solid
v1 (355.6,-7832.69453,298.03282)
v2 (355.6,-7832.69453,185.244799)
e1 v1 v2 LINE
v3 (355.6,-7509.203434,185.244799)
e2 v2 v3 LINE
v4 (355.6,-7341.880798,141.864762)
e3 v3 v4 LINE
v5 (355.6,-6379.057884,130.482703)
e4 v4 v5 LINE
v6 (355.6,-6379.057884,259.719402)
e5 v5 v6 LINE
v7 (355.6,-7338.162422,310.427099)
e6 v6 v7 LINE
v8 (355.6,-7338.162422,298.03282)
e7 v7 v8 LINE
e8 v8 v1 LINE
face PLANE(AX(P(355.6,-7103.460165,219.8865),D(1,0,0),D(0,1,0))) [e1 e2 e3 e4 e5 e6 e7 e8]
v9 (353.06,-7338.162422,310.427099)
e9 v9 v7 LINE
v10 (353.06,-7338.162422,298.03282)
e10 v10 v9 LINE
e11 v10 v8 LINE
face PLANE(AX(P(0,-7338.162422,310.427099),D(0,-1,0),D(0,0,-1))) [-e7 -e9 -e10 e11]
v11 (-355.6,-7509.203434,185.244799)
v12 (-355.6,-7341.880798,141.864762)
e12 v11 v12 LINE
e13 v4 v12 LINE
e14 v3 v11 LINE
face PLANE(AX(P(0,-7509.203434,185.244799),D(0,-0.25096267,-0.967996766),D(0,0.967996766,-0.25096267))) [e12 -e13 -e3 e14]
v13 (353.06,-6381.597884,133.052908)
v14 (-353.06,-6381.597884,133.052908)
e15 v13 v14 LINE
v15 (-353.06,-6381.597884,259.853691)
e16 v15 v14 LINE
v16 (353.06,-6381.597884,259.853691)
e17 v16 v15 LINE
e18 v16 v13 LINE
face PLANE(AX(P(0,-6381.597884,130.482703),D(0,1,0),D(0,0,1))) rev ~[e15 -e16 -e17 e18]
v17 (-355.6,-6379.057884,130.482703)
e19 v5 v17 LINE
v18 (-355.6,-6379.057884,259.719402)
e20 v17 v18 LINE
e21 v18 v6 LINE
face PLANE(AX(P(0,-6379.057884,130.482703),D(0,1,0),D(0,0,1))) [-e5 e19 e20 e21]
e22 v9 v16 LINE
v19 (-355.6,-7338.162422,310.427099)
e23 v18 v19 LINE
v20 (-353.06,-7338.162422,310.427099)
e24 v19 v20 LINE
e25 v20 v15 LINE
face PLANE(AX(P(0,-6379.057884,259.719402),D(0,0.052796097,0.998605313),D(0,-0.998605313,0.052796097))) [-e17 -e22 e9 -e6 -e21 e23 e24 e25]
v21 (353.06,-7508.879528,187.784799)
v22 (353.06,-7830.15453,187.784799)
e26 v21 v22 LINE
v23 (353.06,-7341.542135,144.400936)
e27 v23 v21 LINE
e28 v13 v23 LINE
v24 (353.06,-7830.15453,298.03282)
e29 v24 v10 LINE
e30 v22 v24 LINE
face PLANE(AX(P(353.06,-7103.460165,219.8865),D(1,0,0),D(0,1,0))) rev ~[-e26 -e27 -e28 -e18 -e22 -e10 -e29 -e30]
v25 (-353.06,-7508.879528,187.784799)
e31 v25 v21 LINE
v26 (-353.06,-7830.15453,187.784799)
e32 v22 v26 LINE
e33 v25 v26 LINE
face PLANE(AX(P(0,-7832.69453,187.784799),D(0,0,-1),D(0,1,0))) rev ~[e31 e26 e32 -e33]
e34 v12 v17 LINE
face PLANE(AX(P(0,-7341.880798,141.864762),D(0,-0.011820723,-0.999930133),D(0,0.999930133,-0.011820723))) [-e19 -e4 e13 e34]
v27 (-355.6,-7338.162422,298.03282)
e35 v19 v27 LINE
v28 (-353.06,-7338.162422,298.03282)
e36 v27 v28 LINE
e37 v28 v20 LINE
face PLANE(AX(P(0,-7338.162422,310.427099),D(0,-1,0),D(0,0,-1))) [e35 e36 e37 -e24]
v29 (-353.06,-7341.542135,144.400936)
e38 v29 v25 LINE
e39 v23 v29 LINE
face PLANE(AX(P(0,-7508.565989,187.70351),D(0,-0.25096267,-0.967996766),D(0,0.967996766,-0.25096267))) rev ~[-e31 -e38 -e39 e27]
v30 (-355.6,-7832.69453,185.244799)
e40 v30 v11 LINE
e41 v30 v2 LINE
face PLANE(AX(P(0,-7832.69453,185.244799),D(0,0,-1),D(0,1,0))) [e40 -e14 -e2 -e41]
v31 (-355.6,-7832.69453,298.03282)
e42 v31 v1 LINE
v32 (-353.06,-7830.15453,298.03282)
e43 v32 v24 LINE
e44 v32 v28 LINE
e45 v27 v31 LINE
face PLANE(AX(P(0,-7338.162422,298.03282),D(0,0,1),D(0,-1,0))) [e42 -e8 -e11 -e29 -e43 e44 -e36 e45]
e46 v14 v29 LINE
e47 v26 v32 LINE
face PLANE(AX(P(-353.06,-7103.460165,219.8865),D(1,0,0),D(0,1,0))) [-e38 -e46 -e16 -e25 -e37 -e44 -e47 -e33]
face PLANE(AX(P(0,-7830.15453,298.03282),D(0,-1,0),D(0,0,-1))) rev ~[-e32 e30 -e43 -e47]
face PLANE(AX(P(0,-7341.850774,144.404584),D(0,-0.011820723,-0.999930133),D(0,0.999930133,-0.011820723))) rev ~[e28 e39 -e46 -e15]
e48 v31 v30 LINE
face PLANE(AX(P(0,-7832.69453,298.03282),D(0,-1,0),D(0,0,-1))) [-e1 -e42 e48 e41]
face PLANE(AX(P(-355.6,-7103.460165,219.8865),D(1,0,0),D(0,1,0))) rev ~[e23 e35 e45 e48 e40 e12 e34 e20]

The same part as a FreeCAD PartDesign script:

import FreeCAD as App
import Part
import Sketcher
Q = App.Units.Quantity


def faces_at(feature, points):
    """Names of the faces that lie closest to the given points."""
    faces = feature.Shape.Faces
    near = lambda p: min(range(len(faces)), key=lambda i: faces[i].distToShape(Part.Vertex(*p))[0])
    return sorted({f"Face{near(p) + 1}" for p in points})

doc = App.newDocument("Part")
body = doc.addObject("PartDesign::Body", "Body")

sketch1 = body.newObject("Sketcher::SketchObject", "Sketch")
sketch1.AttachmentSupport = (doc.getObject("YZ_Plane"), [""])
sketch1.MapMode = "FlatFace"
sketch1.addGeometry(Part.LineSegment(App.Vector(-6379, 130, 0), App.Vector(-6379, 260, 0)), False)
sketch1.addGeometry(Part.LineSegment(App.Vector(-6379, 260, 0), App.Vector(-7338, 310, 0)), False)
sketch1.addGeometry(Part.LineSegment(App.Vector(-7338, 310, 0), App.Vector(-7338, 298, 0)), False)
sketch1.addGeometry(Part.LineSegment(App.Vector(-7338, 298, 0), App.Vector(-7833, 298, 0)), False)
sketch1.addGeometry(Part.LineSegment(App.Vector(-7833, 298, 0), App.Vector(-7833, 185, 0)), False)
sketch1.addGeometry(Part.LineSegment(App.Vector(-7833, 185, 0), App.Vector(-7509, 185, 0)), False)
sketch1.addGeometry(Part.LineSegment(App.Vector(-7509, 185, 0), App.Vector(-7342, 142, 0)), False)
sketch1.addGeometry(Part.LineSegment(App.Vector(-7342, 142, 0), App.Vector(-6379, 130, 0)), False)
sketch1.addConstraint(Sketcher.Constraint("Coincident", 0, 2, 1, 1))
sketch1.addConstraint(Sketcher.Constraint("Coincident", 1, 2, 2, 1))
sketch1.addConstraint(Sketcher.Constraint("Coincident", 2, 2, 3, 1))
sketch1.addConstraint(Sketcher.Constraint("Coincident", 3, 2, 4, 1))
sketch1.addConstraint(Sketcher.Constraint("Coincident", 4, 2, 5, 1))
sketch1.addConstraint(Sketcher.Constraint("Coincident", 5, 2, 6, 1))
sketch1.addConstraint(Sketcher.Constraint("Coincident", 6, 2, 7, 1))
sketch1.addConstraint(Sketcher.Constraint("Coincident", 7, 2, 0, 1))
sketch1.addConstraint(Sketcher.Constraint("Vertical", 0))
sketch1.addConstraint(Sketcher.Constraint("Vertical", 2))
sketch1.addConstraint(Sketcher.Constraint("Horizontal", 3))
sketch1.addConstraint(Sketcher.Constraint("Vertical", 4))
sketch1.addConstraint(Sketcher.Constraint("Horizontal", 5))
sketch1.addConstraint(Sketcher.Constraint("DistanceY", 0, 1, 0, 2, Q("129.236698 mm")))
sketch1.addConstraint(Sketcher.Constraint("DistanceX", 3, 2, 3, 1, Q("494.532108 mm")))
sketch1.addConstraint(Sketcher.Constraint("DistanceY", 2, 2, 2, 1, Q("12.394279 mm")))
sketch1.addConstraint(Sketcher.Constraint("DistanceY", 4, 2, 4, 1, Q("112.788022 mm")))
sketch1.addConstraint(Sketcher.Constraint("DistanceY", -1, 1, 0, 2, Q("259.719402 mm")))
sketch1.addConstraint(Sketcher.Constraint("DistanceY", -1, 1, 1, 2, Q("310.427099 mm")))
sketch1.addConstraint(Sketcher.Constraint("DistanceX", 6, 2, -1, 1, Q("7341.880798 mm")))
sketch1.addConstraint(Sketcher.Constraint("Distance", 6, Q("172.85454 mm")))
sketch1.addConstraint(Sketcher.Constraint("Distance", 7, Q("962.890189 mm")))
sketch1.addConstraint(Sketcher.Constraint("DistanceX", 5, 1, 5, 2, Q("323.491096 mm")))
sketch1.addConstraint(Sketcher.Constraint("DistanceX", 3, 2, -1, 1, Q("7832.69453 mm")))
pad1 = body.newObject("PartDesign::Pad", "Pad")
pad1.Profile = sketch1
pad1.Length = Q("28 in")
pad1.Midplane = True
doc.recompute()

thickness = body.newObject("PartDesign::Thickness", "Thickness")
thickness.Base = (pad1, faces_at(pad1, [(0, -6858.61, 285.073), (0, -7338.162, 304.23), (0, -7585.428, 298.033)]))
thickness.Value = Q("0.1 in")
thickness.Reversed = True
thickness.Join = "Intersection"

doc.recompute()
